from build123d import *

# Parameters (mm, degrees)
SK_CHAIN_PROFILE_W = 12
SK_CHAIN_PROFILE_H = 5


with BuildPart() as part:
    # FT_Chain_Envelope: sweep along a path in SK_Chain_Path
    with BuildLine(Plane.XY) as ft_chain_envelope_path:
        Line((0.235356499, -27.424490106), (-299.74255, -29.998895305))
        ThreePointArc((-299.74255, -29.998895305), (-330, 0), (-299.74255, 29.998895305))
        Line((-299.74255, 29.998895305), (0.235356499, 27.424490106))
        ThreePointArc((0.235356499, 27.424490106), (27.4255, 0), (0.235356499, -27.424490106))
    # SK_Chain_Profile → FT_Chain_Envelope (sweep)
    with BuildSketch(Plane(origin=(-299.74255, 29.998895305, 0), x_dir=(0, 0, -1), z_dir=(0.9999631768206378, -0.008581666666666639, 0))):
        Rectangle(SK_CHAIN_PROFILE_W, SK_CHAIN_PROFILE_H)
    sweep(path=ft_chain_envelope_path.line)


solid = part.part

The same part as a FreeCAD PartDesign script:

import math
import FreeCAD as App
import Part
import Sketcher

V = App.Vector
Q = App.Units.Quantity


def add_polygon(sketch, points):
    """Adds a closed chain of lines whose ends are joined by coincident constraints."""
    first, n = sketch.GeometryCount, len(points)
    for a, b in zip(points, points[1:] + points[:1]):
        sketch.addGeometry(Part.LineSegment(App.Vector(*a, 0), App.Vector(*b, 0)), False)
    for i in range(n):
        sketch.addConstraint(Sketcher.Constraint("Coincident", first + i, 2, first + (i + 1) % n, 1))

doc = App.newDocument("Part")
body = doc.addObject("PartDesign::Body", "Body")

# Sketch on an angled plane
sketch1 = body.newObject("Sketcher::SketchObject", "Sketch")
sketch1.Placement = App.Placement(V(-299.74255, 29.998895, 0), App.Rotation(V(0, 0, -1), V(0.008581667, 0.999963177, 0), V(0.999963177, -0.008581667, 0), "ZXY"))
add_polygon(sketch1, [(-6, 2.5), (-6, -2.5), (6, -2.5), (6, 2.5)])  # lines 0-3
sketch1.addConstraint(Sketcher.Constraint("Vertical", 0))
sketch1.addConstraint(Sketcher.Constraint("Horizontal", 1))
sketch1.addConstraint(Sketcher.Constraint("Vertical", 2))
sketch1.addConstraint(Sketcher.Constraint("Horizontal", 3))
sketch1.addConstraint(Sketcher.Constraint("Symmetric", 0, 2, 2, 2, -1, 1))
sketch1.addConstraint(Sketcher.Constraint("DistanceX", 1, 1, 1, 2, Q("12 mm")))
sketch1.addConstraint(Sketcher.Constraint("DistanceY", 0, 2, 0, 1, Q("5 mm")))

# Sketch on XY plane
sketch2 = body.newObject("Sketcher::SketchObject", "Sketch001")
sketch2.AttachmentSupport = (doc.getObject("XY_Plane"), [""])
sketch2.MapMode = "FlatFace"
sketch2.addGeometry(Part.LineSegment(V(0.235356, -27.42449, 0), V(-299.74255, -29.998895, 0)), False)
sketch2.addGeometry(Part.ArcOfCircle(Part.Circle(V(-300, 0, 0), V(0, 0, 1), 30), math.radians(89.508301), math.radians(270.491699)), False)
sketch2.addGeometry(Part.LineSegment(V(-299.74255, 29.998895, 0), V(0.235356, 27.42449, 0)), False)
sketch2.addGeometry(Part.ArcOfCircle(Part.Circle(V(0, 0, 0), V(0, 0, 1), 27.4255), math.radians(-89.508301), math.radians(89.508301)), False)
sketch2.addConstraint(Sketcher.Constraint("Tangent", 0, 2, 1, 2))
sketch2.addConstraint(Sketcher.Constraint("Tangent", 1, 1, 2, 1))
sketch2.addConstraint(Sketcher.Constraint("Tangent", 2, 2, 3, 2))
sketch2.addConstraint(Sketcher.Constraint("Tangent", 3, 1, 0, 1))
sketch2.addConstraint(Sketcher.Constraint("Coincident", 3, 3, -1, 1))
sketch2.addConstraint(Sketcher.Constraint("PointOnObject", 1, 3, -1))
sketch2.addConstraint(Sketcher.Constraint("Radius", 1, Q("30 mm")))
sketch2.addConstraint(Sketcher.Constraint("DistanceX", 1, 3, -1, 1, Q("300 mm")))
sketch2.addConstraint(Sketcher.Constraint("Radius", 3, Q("27.4255 mm")))
doc.recompute()

additivepipe = body.newObject("PartDesign::AdditivePipe", "AdditivePipe")
additivepipe.Profile = sketch1
additivepipe.Spine = (sketch2, ["Edge1", "Edge2", "Edge3", "Edge4"])

doc.recompute()
